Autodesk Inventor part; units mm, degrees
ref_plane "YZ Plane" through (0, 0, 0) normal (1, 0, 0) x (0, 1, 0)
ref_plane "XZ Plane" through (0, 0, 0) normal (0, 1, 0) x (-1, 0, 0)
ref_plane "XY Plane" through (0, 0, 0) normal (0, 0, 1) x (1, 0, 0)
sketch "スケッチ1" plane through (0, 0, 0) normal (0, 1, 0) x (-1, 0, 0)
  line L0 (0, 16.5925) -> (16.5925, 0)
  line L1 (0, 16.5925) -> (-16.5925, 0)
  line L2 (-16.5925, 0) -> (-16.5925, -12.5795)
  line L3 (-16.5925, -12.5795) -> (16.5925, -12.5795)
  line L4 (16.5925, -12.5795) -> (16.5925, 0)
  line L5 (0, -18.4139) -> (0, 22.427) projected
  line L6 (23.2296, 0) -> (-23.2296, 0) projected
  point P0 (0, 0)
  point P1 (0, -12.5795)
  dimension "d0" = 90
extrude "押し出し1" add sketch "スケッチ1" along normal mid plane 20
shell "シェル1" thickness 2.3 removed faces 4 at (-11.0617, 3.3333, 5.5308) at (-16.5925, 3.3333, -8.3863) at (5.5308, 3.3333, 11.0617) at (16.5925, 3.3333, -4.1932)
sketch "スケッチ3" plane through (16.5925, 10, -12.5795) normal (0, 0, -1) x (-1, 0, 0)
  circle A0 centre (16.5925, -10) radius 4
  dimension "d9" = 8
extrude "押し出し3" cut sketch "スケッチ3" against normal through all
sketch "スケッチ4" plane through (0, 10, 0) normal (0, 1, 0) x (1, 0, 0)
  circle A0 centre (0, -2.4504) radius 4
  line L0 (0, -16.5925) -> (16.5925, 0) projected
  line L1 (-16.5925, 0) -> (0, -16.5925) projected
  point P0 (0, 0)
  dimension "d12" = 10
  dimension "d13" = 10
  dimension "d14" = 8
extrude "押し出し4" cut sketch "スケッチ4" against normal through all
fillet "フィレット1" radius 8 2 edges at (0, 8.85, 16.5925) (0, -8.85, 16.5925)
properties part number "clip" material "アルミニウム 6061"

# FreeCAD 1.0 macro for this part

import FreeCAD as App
import Part
import Sketcher
from FreeCAD import Vector
Q = App.Units.Quantity


def edges_at(feature, points):
    """Names of the edges that pass closest to the given points."""
    edges = feature.Shape.Edges
    near = lambda p: min(range(len(edges)), key=lambda i: edges[i].distToShape(Part.Vertex(*p))[0])
    return sorted({f"Edge{near(p) + 1}" for p in points})


def faces_at(feature, points):
    """Names of the faces that lie closest to the given points."""
    faces = feature.Shape.Faces
    near = lambda p: min(range(len(faces)), key=lambda i: faces[i].distToShape(Part.Vertex(*p))[0])
    return sorted({f"Face{near(p) + 1}" for p in points})

doc = App.newDocument("Part")
body = doc.addObject("PartDesign::Body", "Body")

sketch1 = body.newObject("Sketcher::SketchObject", "Sketch")
sketch1.AttachmentSupport = (doc.getObject("XZ_Plane"), [""])
sketch1.MapMode = "FlatFace"
sketch1.addGeometry([
    Part.LineSegment(Vector(0, 16.5925, 0), Vector(16.5925, 0, 0)),
    Part.LineSegment(Vector(16.5925, 0, 0), Vector(16.5925, -12.5795, 0)),
    Part.LineSegment(Vector(16.5925, -12.5795, 0), Vector(-16.5925, -12.5795, 0)),
    Part.LineSegment(Vector(-16.5925, -12.5795, 0), Vector(-16.5925, 0, 0)),
    Part.LineSegment(Vector(-16.5925, 0, 0), Vector(0, 16.5925, 0)),
], False)
sketch1.addConstraint([
    Sketcher.Constraint("Coincident", 0, 2, 1, 1),
    Sketcher.Constraint("Coincident", 1, 2, 2, 1),
    Sketcher.Constraint("Coincident", 2, 2, 3, 1),
    Sketcher.Constraint("Coincident", 3, 2, 4, 1),
    Sketcher.Constraint("Coincident", 4, 2, 0, 1),
    Sketcher.Constraint("Vertical", 1),
    Sketcher.Constraint("Horizontal", 2),
    Sketcher.Constraint("Vertical", 3),
    Sketcher.Constraint("Symmetric", 0, 2, 3, 2, -1, 1),
    Sketcher.Constraint("PointOnObject", 0, 2, -1),
    Sketcher.Constraint("PointOnObject", 4, 2, -2),
    Sketcher.Constraint("Perpendicular", 0, 4),
    Sketcher.Constraint("DistanceX", 2, 2, 2, 1, Q("33.185 mm")),
    Sketcher.Constraint("DistanceY", 1, 2, 1, 1, Q("12.5795 mm")),
])
pad1 = body.newObject("PartDesign::Pad", "Pad")
pad1.Profile = sketch1
pad1.Length = 20
pad1.Midplane = True
doc.recompute()

thickness = body.newObject("PartDesign::Thickness", "Thickness")
thickness.Base = (pad1, faces_at(pad1, [
    (-11.062, 3.333, 5.531),
    (-16.593, 3.333, -8.386),
    (5.531, 3.333, 11.062),
    (16.593, 3.333, -4.193),
]))
thickness.Value = 2.3
thickness.Reversed = True
thickness.Join = "Intersection"

sketch2 = body.newObject("Sketcher::SketchObject", "Sketch001")
sketch2.AttachmentSupport = (doc.getObject("XY_Plane"), [""])
sketch2.MapMode = "FlatFace"
sketch2.AttachmentOffset = App.Placement(Vector(0, 0, -12.5795), App.Rotation())
sketch2.addGeometry(Part.Circle(Vector(0, 0, 0), Vector(0, 0, 1), 4), False)
sketch2.addConstraint([
    Sketcher.Constraint("Coincident", 0, 3, -1, 1),
    Sketcher.Constraint("Diameter", 0, Q("8 mm")),
])
pocket1 = body.newObject("PartDesign::Pocket", "Pocket")
pocket1.Profile = sketch2
pocket1.Type = "ThroughAll"
pocket1.Reversed = True

sketch3 = body.newObject("Sketcher::SketchObject", "Sketch002")
sketch3.AttachmentSupport = (doc.getObject("XZ_Plane"), [""])
sketch3.MapMode = "FlatFace"
sketch3.AttachmentOffset = App.Placement(Vector(0, 0, -10), App.Rotation())
sketch3.addGeometry(Part.Circle(Vector(0, 2.4504, 0), Vector(0, 0, 1), 4), False)
sketch3.addConstraint([
    Sketcher.Constraint("PointOnObject", 0, 3, -2),
    Sketcher.Constraint("Diameter", 0, Q("8 mm")),
    Sketcher.Constraint("DistanceY", -1, 1, 0, 3, Q("2.4504 mm")),
])
pocket2 = body.newObject("PartDesign::Pocket", "Pocket001")
pocket2.Profile = sketch3
pocket2.Type = "ThroughAll"
pocket2.Reversed = True
doc.recompute()

fillet = body.newObject("PartDesign::Fillet", "Fillet")
fillet.Base = (pocket2, edges_at(pocket2, [(0, 8.85, 16.593), (0, -8.85, 16.593)]))
fillet.Radius = 8

doc.recompute()
